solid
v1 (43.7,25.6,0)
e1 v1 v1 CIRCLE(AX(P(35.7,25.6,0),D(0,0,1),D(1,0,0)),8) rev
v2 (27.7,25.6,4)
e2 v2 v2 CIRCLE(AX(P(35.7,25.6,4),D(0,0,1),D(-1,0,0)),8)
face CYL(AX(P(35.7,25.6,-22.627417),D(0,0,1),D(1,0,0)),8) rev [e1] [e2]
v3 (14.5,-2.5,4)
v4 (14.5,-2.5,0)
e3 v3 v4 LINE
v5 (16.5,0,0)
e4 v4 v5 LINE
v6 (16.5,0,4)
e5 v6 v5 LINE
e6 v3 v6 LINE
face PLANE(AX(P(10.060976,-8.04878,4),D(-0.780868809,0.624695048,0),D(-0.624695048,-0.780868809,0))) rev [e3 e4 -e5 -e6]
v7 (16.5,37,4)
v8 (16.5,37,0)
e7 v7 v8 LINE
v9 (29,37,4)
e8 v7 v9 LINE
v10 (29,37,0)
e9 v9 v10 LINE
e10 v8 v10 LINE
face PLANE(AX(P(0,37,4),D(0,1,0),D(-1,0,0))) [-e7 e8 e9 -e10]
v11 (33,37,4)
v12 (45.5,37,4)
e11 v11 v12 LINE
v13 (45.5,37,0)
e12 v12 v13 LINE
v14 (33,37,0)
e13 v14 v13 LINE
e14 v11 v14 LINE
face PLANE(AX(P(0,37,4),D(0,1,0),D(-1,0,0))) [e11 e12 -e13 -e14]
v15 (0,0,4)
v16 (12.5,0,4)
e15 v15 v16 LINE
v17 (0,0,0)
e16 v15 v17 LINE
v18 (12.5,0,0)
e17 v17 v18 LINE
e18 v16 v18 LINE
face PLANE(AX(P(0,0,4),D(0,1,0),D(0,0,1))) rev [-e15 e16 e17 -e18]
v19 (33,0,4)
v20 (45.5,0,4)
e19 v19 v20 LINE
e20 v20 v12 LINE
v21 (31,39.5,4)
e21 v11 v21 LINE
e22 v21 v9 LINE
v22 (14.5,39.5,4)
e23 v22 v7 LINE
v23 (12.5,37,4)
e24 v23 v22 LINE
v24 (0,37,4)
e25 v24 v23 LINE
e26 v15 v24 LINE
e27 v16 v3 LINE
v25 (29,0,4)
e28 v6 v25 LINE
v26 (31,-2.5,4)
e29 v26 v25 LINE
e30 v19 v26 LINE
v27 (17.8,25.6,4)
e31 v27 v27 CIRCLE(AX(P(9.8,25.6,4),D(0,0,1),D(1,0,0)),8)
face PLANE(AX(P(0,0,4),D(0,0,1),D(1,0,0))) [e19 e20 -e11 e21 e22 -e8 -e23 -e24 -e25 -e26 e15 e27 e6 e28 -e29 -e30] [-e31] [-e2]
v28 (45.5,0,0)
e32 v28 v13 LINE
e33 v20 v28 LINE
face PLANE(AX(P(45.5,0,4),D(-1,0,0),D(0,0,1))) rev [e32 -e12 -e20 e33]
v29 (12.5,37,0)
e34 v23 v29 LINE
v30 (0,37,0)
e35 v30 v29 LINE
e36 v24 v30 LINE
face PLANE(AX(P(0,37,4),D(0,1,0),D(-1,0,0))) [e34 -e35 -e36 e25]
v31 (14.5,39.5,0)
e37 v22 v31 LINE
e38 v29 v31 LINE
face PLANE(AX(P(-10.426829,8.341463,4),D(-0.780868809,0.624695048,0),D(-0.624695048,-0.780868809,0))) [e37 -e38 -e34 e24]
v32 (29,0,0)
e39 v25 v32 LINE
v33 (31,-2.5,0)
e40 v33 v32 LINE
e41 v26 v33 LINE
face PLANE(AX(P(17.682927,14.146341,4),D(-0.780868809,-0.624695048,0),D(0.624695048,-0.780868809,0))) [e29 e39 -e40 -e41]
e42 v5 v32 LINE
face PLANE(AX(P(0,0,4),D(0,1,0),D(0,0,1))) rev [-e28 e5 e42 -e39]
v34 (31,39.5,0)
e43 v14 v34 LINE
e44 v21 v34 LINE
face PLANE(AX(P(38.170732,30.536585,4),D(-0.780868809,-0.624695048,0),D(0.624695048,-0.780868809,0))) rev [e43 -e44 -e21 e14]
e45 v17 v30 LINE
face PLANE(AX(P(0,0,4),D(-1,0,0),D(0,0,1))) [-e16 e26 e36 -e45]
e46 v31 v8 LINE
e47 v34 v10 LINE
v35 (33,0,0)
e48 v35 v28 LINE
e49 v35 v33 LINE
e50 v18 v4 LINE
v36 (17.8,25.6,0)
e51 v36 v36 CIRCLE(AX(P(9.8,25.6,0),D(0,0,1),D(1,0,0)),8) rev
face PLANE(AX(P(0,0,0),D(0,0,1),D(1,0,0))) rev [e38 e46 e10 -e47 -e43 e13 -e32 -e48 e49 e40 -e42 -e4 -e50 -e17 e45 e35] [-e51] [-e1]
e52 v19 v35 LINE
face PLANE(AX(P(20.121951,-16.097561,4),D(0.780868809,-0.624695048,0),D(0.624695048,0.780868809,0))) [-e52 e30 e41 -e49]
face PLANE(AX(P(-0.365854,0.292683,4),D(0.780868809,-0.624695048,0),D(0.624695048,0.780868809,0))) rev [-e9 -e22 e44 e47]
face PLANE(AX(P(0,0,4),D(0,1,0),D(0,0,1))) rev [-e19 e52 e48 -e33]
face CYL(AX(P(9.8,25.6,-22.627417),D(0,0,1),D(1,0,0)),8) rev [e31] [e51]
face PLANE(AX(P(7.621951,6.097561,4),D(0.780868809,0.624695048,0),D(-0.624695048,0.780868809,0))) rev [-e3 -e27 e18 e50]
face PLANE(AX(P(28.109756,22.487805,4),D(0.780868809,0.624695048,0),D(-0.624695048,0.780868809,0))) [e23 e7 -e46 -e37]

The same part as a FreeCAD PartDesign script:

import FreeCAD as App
import Part
import Sketcher

doc = App.newDocument("Part")
params = doc.addObject("Spreadsheet::Sheet", "Params")
for row, (alias, value) in enumerate([
    ("sketch1_height", "37 mm"),
    ("sketch1_width", "12.5 mm"),
    ("pad1_length", "4 mm"),
    ("sketch2_diameter", "16 mm"),
    ("pocket1_length", "4 mm"),
], start=1):
    params.set(f"A{row}", alias)
    params.set(f"B{row}", "=" + value)
    params.setAlias(f"B{row}", alias)

body = doc.addObject("PartDesign::Body", "Body")

sketch1 = body.newObject("Sketcher::SketchObject", "Sketch")
sketch1.AttachmentSupport = (doc.getObject("XY_Plane"), [""])
sketch1.MapMode = "FlatFace"
sketch1.addGeometry([
    Part.LineSegment(App.Vector(0, 37, 0), App.Vector(0, 0, 0)),
    Part.LineSegment(App.Vector(0, 0, 0), App.Vector(12.5, 0, 0)),
    Part.LineSegment(App.Vector(12.5, 0, 0), App.Vector(14.5, -2.5, 0)),
    Part.LineSegment(App.Vector(14.5, -2.5, 0), App.Vector(16.5, 0, 0)),
    Part.LineSegment(App.Vector(16.5, 0, 0), App.Vector(29, 0, 0)),
    Part.LineSegment(App.Vector(29, 0, 0), App.Vector(31, -2.5, 0)),
    Part.LineSegment(App.Vector(31, -2.5, 0), App.Vector(33, 0, 0)),
    Part.LineSegment(App.Vector(33, 0, 0), App.Vector(45.5, 0, 0)),
    Part.LineSegment(App.Vector(45.5, 0, 0), App.Vector(45.5, 37, 0)),
    Part.LineSegment(App.Vector(45.5, 37, 0), App.Vector(33, 37, 0)),
    Part.LineSegment(App.Vector(33, 37, 0), App.Vector(31, 39.5, 0)),
    Part.LineSegment(App.Vector(31, 39.5, 0), App.Vector(29, 37, 0)),
    Part.LineSegment(App.Vector(29, 37, 0), App.Vector(16.5, 37, 0)),
    Part.LineSegment(App.Vector(16.5, 37, 0), App.Vector(14.5, 39.5, 0)),
    Part.LineSegment(App.Vector(14.5, 39.5, 0), App.Vector(12.5, 37, 0)),
    Part.LineSegment(App.Vector(12.5, 37, 0), App.Vector(0, 37, 0)),
], False)
sketch1.addConstraint([
    Sketcher.Constraint("Coincident", 0, 2, 1, 1),
    Sketcher.Constraint("Coincident", 1, 2, 2, 1),
    Sketcher.Constraint("Coincident", 2, 2, 3, 1),
    Sketcher.Constraint("Coincident", 3, 2, 4, 1),
    Sketcher.Constraint("Coincident", 4, 2, 5, 1),
    Sketcher.Constraint("Coincident", 5, 2, 6, 1),
    Sketcher.Constraint("Coincident", 6, 2, 7, 1),
    Sketcher.Constraint("Coincident", 7, 2, 8, 1),
    Sketcher.Constraint("Coincident", 8, 2, 9, 1),
    Sketcher.Constraint("Coincident", 9, 2, 10, 1),
    Sketcher.Constraint("Coincident", 10, 2, 11, 1),
    Sketcher.Constraint("Coincident", 11, 2, 12, 1),
    Sketcher.Constraint("Coincident", 12, 2, 13, 1),
    Sketcher.Constraint("Coincident", 13, 2, 14, 1),
    Sketcher.Constraint("Coincident", 14, 2, 15, 1),
    Sketcher.Constraint("Coincident", 15, 2, 0, 1),
    Sketcher.Constraint("Vertical", 0),
    Sketcher.Constraint("Horizontal", 1),
    Sketcher.Constraint("Horizontal", 4),
    Sketcher.Constraint("Horizontal", 7),
    Sketcher.Constraint("Vertical", 8),
    Sketcher.Constraint("Horizontal", 9),
    Sketcher.Constraint("Horizontal", 12),
    Sketcher.Constraint("Horizontal", 15),
    Sketcher.Constraint("Coincident", 0, 2, -1, 1),
    Sketcher.Constraint("PointOnObject", 3, 2, -1),
    Sketcher.Constraint("PointOnObject", 6, 2, -1),
    Sketcher.Constraint("Parallel", 2, 5),
    Sketcher.Constraint("Parallel", 3, 6),
    Sketcher.Constraint("Parallel", 5, 10),
    Sketcher.Constraint("Parallel", 6, 11),
    Sketcher.Constraint("Parallel", 10, 13),
    Sketcher.Constraint("Parallel", 11, 14),
    Sketcher.Constraint("Horizontal", 2, 2, 5, 2),
    Sketcher.Constraint("Horizontal", 9, 2, 11, 2),
    Sketcher.Constraint("Horizontal", 10, 2, 13, 2),
    Sketcher.Constraint("Horizontal", 12, 2, 14, 2),
    Sketcher.Constraint("Vertical", 6, 2, 9, 2),
    Sketcher.Constraint("Vertical", 5, 2, 10, 2),
    Sketcher.Constraint("Vertical", 4, 2, 11, 2),
    Sketcher.Constraint("Vertical", 3, 2, 12, 2),
    Sketcher.Constraint("Equal", 1, 4),
    Sketcher.Constraint("Equal", 4, 7),
    Sketcher.Constraint("DistanceY", 0, 2, 0, 1, 37.0),
    Sketcher.Constraint("DistanceX", 1, 1, 1, 2, 12.5),
    Sketcher.Constraint("DistanceX", -1, 1, 4, 2, 29.0),
    Sketcher.Constraint("DistanceY", 5, 2, 10, 2, 42.0),
])
sketch1.setExpression("Constraints[43]", "Params.sketch1_height")
sketch1.setExpression("Constraints[44]", "Params.sketch1_width")
pad1 = body.newObject("PartDesign::Pad", "Pad")
pad1.Profile = sketch1
pad1.setExpression("Length", "Params.pad1_length")

sketch2 = body.newObject("Sketcher::SketchObject", "Sketch001")
sketch2.AttachmentSupport = (doc.getObject("XY_Plane"), [""])
sketch2.MapMode = "FlatFace"
sketch2.AttachmentOffset = App.Placement(App.Vector(0, 0, 4), App.Rotation())
sketch2.addGeometry([
    Part.Circle(App.Vector(10, 26, 0), App.Vector(0, 0, 1), 8),
    Part.Circle(App.Vector(36, 26, 0), App.Vector(0, 0, 1), 8),
], False)
sketch2.addConstraint([
    Sketcher.Constraint("Equal", 0, 1),
    Sketcher.Constraint("Horizontal", 0, 3, 1, 3),
    Sketcher.Constraint("Diameter", 0, 16.0),
    Sketcher.Constraint("DistanceX", -1, 1, 0, 3, 9.8),
    Sketcher.Constraint("DistanceY", -1, 1, 0, 3, 25.6),
    Sketcher.Constraint("DistanceX", -1, 1, 1, 3, 35.7),
])
sketch2.setExpression("Constraints[2]", "Params.sketch2_diameter")
pocket1 = body.newObject("PartDesign::Pocket", "Pocket")
pocket1.Profile = sketch2
pocket1.setExpression("Length", "Params.pocket1_length")

doc.recompute()
